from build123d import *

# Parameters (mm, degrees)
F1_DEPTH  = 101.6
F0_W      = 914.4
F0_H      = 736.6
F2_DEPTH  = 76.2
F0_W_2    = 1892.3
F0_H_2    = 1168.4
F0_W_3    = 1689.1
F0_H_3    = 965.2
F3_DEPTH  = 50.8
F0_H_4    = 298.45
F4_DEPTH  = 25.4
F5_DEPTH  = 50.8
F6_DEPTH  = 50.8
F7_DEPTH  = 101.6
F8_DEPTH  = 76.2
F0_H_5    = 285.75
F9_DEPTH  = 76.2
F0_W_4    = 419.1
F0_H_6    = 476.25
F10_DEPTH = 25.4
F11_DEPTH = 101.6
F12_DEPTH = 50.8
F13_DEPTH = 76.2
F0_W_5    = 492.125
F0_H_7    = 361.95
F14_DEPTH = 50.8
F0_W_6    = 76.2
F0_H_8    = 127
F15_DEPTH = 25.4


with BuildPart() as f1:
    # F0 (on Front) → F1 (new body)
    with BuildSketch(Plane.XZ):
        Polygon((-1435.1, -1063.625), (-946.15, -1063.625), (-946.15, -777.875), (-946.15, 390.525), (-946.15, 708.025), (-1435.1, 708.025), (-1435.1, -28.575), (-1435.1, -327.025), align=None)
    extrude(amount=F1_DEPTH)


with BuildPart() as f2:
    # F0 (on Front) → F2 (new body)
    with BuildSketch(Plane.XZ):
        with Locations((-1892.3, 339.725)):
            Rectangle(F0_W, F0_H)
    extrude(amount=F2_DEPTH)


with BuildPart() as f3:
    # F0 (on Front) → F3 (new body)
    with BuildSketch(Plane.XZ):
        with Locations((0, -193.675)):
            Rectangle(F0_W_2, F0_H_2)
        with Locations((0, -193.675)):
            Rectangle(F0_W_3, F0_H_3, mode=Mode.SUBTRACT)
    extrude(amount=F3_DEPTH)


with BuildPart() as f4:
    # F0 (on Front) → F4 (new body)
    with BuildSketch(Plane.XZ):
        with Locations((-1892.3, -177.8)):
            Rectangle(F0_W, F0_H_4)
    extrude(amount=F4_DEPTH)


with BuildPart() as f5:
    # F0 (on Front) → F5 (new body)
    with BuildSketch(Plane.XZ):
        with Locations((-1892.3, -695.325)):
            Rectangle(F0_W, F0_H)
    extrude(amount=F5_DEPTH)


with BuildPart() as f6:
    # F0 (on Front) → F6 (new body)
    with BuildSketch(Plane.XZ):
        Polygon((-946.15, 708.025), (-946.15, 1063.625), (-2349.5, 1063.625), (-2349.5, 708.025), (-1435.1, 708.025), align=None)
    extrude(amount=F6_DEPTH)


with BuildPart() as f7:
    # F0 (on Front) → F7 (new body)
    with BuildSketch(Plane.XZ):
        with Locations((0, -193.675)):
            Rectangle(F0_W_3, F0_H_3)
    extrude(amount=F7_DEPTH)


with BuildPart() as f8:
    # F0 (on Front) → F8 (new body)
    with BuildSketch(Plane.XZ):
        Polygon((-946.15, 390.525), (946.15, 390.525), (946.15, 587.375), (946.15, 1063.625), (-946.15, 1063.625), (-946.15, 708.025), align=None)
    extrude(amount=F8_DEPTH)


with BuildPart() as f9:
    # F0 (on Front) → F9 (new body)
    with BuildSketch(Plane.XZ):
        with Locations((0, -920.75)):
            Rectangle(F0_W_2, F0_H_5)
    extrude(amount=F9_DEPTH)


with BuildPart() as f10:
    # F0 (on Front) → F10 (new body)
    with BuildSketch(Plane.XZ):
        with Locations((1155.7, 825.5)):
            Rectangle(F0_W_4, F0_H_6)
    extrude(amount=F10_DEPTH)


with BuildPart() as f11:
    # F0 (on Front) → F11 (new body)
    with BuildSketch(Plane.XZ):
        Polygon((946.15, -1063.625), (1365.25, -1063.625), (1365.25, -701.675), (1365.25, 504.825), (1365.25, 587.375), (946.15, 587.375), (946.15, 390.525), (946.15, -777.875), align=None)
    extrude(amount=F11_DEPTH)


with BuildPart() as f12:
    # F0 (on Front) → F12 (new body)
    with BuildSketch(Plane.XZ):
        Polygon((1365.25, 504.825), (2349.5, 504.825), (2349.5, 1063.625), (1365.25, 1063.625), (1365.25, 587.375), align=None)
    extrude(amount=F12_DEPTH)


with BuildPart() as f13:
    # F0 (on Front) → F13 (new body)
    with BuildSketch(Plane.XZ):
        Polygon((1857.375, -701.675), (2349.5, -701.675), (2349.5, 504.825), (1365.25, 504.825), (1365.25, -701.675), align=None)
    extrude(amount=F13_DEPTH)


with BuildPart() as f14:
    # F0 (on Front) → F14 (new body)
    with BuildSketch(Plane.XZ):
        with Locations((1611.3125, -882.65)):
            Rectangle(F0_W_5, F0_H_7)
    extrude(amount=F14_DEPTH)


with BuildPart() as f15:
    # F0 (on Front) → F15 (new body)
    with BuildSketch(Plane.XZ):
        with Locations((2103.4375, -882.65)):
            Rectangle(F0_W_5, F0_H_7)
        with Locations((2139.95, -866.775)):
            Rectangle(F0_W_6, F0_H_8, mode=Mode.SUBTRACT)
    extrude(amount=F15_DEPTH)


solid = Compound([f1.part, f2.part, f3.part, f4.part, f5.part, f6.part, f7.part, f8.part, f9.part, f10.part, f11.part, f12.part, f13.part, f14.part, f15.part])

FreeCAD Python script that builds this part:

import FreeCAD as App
import Part
import Sketcher
from FreeCAD import Vector
Q = App.Units.Quantity


def add_polygon(sketch, points):
    """Adds a closed chain of lines whose ends are joined by coincident constraints."""
    first, n = sketch.GeometryCount, len(points)
    for a, b in zip(points, points[1:] + points[:1]):
        sketch.addGeometry(Part.LineSegment(App.Vector(*a, 0), App.Vector(*b, 0)), False)
    for i in range(n):
        sketch.addConstraint(Sketcher.Constraint("Coincident", first + i, 2, first + (i + 1) % n, 1))

doc = App.newDocument("Part")
params = doc.addObject("Spreadsheet::Sheet", "Params")
for row, (alias, value) in enumerate([
    ("sketch1_width", "19.25 in"),
    ("sketch1_height", "69.75 in"),
    ("pad1_length", "4 in"),
    ("sketch2_width", "36 in"),
    ("sketch2_height", "29 in"),
    ("pad2_length", "3 in"),
    ("sketch3_height", "46 in"),
    ("sketch3_height2", "38 in"),
    ("sketch3_width", "74.5 in"),
    ("sketch3_width2", "66.5 in"),
    ("pad3_length", "2 in"),
    ("sketch4_width", "36 in"),
    ("sketch4_height", "11.75 in"),
    ("pad4_length", "1 in"),
    ("sketch5_width", "36 in"),
    ("sketch5_height", "29 in"),
    ("pad5_length", "2 in"),
    ("sketch6_height", "14 in"),
    ("sketch6_width", "55.25 in"),
    ("pad6_length", "2 in"),
    ("sketch7_height", "38 in"),
    ("sketch7_width", "66.5 in"),
    ("pad7_length", "4 in"),
    ("sketch8_width", "74.5 in"),
    ("sketch8_height", "26.5 in"),
    ("pad8_length", "3 in"),
    ("sketch9_width", "74.5 in"),
    ("sketch9_height", "11.25 in"),
    ("pad9_length", "3 in"),
    ("sketch10_width", "16.5 in"),
    ("sketch10_height", "18.75 in"),
    ("pad10_length", "1 in"),
    ("sketch11_height", "65 in"),
    ("sketch11_width", "16.5 in"),
    ("pad11_length", "4 in"),
    ("sketch12_height", "22 in"),
    ("sketch12_width", "38.75 in"),
    ("pad12_length", "2 in"),
    ("sketch13_height", "47.5 in"),
    ("sketch13_width", "38.75 in"),
    ("pad13_length", "3 in"),
    ("sketch14_height", "14.25 in"),
    ("sketch14_width", "19.375 in"),
    ("pad14_length", "2 in"),
    ("sketch15_width", "3 in"),
    ("sketch15_height", "5 in"),
    ("sketch15_height2", "14.25 in"),
    ("sketch15_width2", "19.375 in"),
    ("pad15_length", "1 in"),
], start=1):
    params.set(f"A{row}", alias)
    params.set(f"B{row}", "=" + value)
    params.setAlias(f"B{row}", alias)

body = doc.addObject("PartDesign::Body", "Body")

# Sketch on XZ plane
sketch1 = body.newObject("Sketcher::SketchObject", "Sketch")
sketch1.AttachmentSupport = (doc.getObject("XZ_Plane"), [""])
sketch1.MapMode = "FlatFace"
add_polygon(sketch1, [(-1435, -1064), (-946, -1064), (-946, 708), (-1435, 708)])  # lines 0-3
sketch1.addConstraint([
    Sketcher.Constraint("Horizontal", 0),
    Sketcher.Constraint("Vertical", 1),
    Sketcher.Constraint("Horizontal", 2),
    Sketcher.Constraint("Vertical", 3),
    Sketcher.Constraint("DistanceX", 0, 1, 0, 2, Q("19.25 in")),
    Sketcher.Constraint("DistanceY", 1, 1, 1, 2, Q("69.75 in")),
    Sketcher.Constraint("DistanceX", 2, 2, -1, 1, Q("56.5 in")),
    Sketcher.Constraint("DistanceY", 0, 2, -1, 1, Q("41.875 in")),
])
sketch1.setExpression("Constraints[8]", "Params.sketch1_width")
sketch1.setExpression("Constraints[9]", "Params.sketch1_height")
pad1 = body.newObject("PartDesign::Pad", "Pad")
pad1.Profile = sketch1
pad1.setExpression("Length", "Params.pad1_length")
body2 = doc.addObject("PartDesign::Body", "Body001")

# Sketch on XZ plane
sketch2 = body2.newObject("Sketcher::SketchObject", "Sketch001")
sketch2.AttachmentSupport = (doc.getObject("XZ_Plane001"), [""])
sketch2.MapMode = "FlatFace"
add_polygon(sketch2, [(-2350, 708), (-2350, -29), (-1435, -29), (-1435, 708)])  # lines 0-3
sketch2.addConstraint([
    Sketcher.Constraint("Vertical", 0),
    Sketcher.Constraint("Horizontal", 1),
    Sketcher.Constraint("Vertical", 2),
    Sketcher.Constraint("Horizontal", 3),
    Sketcher.Constraint("DistanceX", 1, 1, 1, 2, Q("36 in")),
    Sketcher.Constraint("DistanceY", 0, 2, 0, 1, Q("29 in")),
    Sketcher.Constraint("DistanceX", 0, 2, -1, 1, Q("92.5 in")),
    Sketcher.Constraint("DistanceY", 0, 2, -1, 1, Q("1.125 in")),
])
sketch2.setExpression("Constraints[8]", "Params.sketch2_width")
sketch2.setExpression("Constraints[9]", "Params.sketch2_height")
pad2 = body2.newObject("PartDesign::Pad", "Pad001")
pad2.Profile = sketch2
pad2.setExpression("Length", "Params.pad2_length")
body3 = doc.addObject("PartDesign::Body", "Body002")

# Sketch on XZ plane
sketch3 = body3.newObject("Sketcher::SketchObject", "Sketch002")
sketch3.AttachmentSupport = (doc.getObject("XZ_Plane002"), [""])
sketch3.MapMode = "FlatFace"
add_polygon(sketch3, [(-946, 391), (-946, -778), (946, -778), (946, 391)])  # lines 0-3
add_polygon(sketch3, [(845, -676), (-845, -676), (-845, 289), (845, 289)])  # lines 4-7
sketch3.addConstraint([
    Sketcher.Constraint("Vertical", 0),
    Sketcher.Constraint("Horizontal", 1),
    Sketcher.Constraint("Vertical", 2),
    Sketcher.Constraint("Horizontal", 3),
    Sketcher.Constraint("Horizontal", 4),
    Sketcher.Constraint("Vertical", 5),
    Sketcher.Constraint("Horizontal", 6),
    Sketcher.Constraint("Vertical", 7),
    Sketcher.Constraint("DistanceY", 0, 2, 0, 1, Q("46 in")),
    Sketcher.Constraint("DistanceY", 5, 1, 5, 2, Q("38 in")),
    Sketcher.Constraint("DistanceX", 1, 1, 1, 2, Q("74.5 in")),
    Sketcher.Constraint("DistanceX", 4, 2, 4, 1, Q("66.5 in")),
    Sketcher.Constraint("DistanceX", 0, 2, 4, 2, Q("4 in")),
    Sketcher.Constraint("DistanceY", 0, 2, 4, 2, Q("4 in")),
    Sketcher.Constraint("DistanceX", 0, 2, -1, 1, Q("37.25 in")),
    Sketcher.Constraint("DistanceY", 0, 2, -1, 1, Q("30.625 in")),
])
sketch3.setExpression("Constraints[16]", "Params.sketch3_height")
sketch3.setExpression("Constraints[17]", "Params.sketch3_height2")
sketch3.setExpression("Constraints[18]", "Params.sketch3_width")
sketch3.setExpression("Constraints[19]", "Params.sketch3_width2")
pad3 = body3.newObject("PartDesign::Pad", "Pad002")
pad3.Profile = sketch3
pad3.setExpression("Length", "Params.pad3_length")
body4 = doc.addObject("PartDesign::Body", "Body003")

# Sketch on XZ plane
sketch4 = body4.newObject("Sketcher::SketchObject", "Sketch003")
sketch4.AttachmentSupport = (doc.getObject("XZ_Plane003"), [""])
sketch4.MapMode = "FlatFace"
add_polygon(sketch4, [(-2350, -29), (-2350, -327), (-1435, -327), (-1435, -29)])  # lines 0-3
sketch4.addConstraint([
    Sketcher.Constraint("Vertical", 0),
    Sketcher.Constraint("Horizontal", 1),
    Sketcher.Constraint("Vertical", 2),
    Sketcher.Constraint("Horizontal", 3),
    Sketcher.Constraint("DistanceX", 1, 1, 1, 2, Q("36 in")),
    Sketcher.Constraint("DistanceY", 0, 2, 0, 1, Q("11.75 in")),
    Sketcher.Constraint("DistanceX", 0, 2, -1, 1, Q("92.5 in")),
    Sketcher.Constraint("DistanceY", 0, 2, -1, 1, Q("12.875 in")),
])
sketch4.setExpression("Constraints[8]", "Params.sketch4_width")
sketch4.setExpression("Constraints[9]", "Params.sketch4_height")
pad4 = body4.newObject("PartDesign::Pad", "Pad003")
pad4.Profile = sketch4
pad4.setExpression("Length", "Params.pad4_length")
body5 = doc.addObject("PartDesign::Body", "Body004")

# Sketch on XZ plane
sketch5 = body5.newObject("Sketcher::SketchObject", "Sketch004")
sketch5.AttachmentSupport = (doc.getObject("XZ_Plane004"), [""])
sketch5.MapMode = "FlatFace"
add_polygon(sketch5, [(-2350, -327), (-2350, -1064), (-1435, -1064), (-1435, -327)])  # lines 0-3
sketch5.addConstraint([
    Sketcher.Constraint("Vertical", 0),
    Sketcher.Constraint("Horizontal", 1),
    Sketcher.Constraint("Vertical", 2),
    Sketcher.Constraint("Horizontal", 3),
    Sketcher.Constraint("DistanceX", 1, 1, 1, 2, Q("36 in")),
    Sketcher.Constraint("DistanceY", 0, 2, 0, 1, Q("29 in")),
    Sketcher.Constraint("DistanceX", 0, 2, -1, 1, Q("92.5 in")),
    Sketcher.Constraint("DistanceY", 0, 2, -1, 1, Q("41.875 in")),
])
sketch5.setExpression("Constraints[8]", "Params.sketch5_width")
sketch5.setExpression("Constraints[9]", "Params.sketch5_height")
pad5 = body5.newObject("PartDesign::Pad", "Pad004")
pad5.Profile = sketch5
pad5.setExpression("Length", "Params.pad5_length")
body6 = doc.addObject("PartDesign::Body", "Body005")

# Sketch on XZ plane
sketch6 = body6.newObject("Sketcher::SketchObject", "Sketch005")
sketch6.AttachmentSupport = (doc.getObject("XZ_Plane005"), [""])
sketch6.MapMode = "FlatFace"
add_polygon(sketch6, [(-946, 708), (-946, 1064), (-2350, 1064), (-2350, 708)])  # lines 0-3
sketch6.addConstraint([
    Sketcher.Constraint("Vertical", 0),
    Sketcher.Constraint("Horizontal", 1),
    Sketcher.Constraint("Vertical", 2),
    Sketcher.Constraint("Horizontal", 3),
    Sketcher.Constraint("DistanceY", 0, 1, 0, 2, Q("14 in")),
    Sketcher.Constraint("DistanceX", 1, 2, 1, 1, Q("55.25 in")),
    Sketcher.Constraint("DistanceX", 1, 2, -1, 1, Q("92.5 in")),
    Sketcher.Constraint("DistanceY", -1, 1, 0, 2, Q("41.875 in")),
])
sketch6.setExpression("Constraints[8]", "Params.sketch6_height")
sketch6.setExpression("Constraints[9]", "Params.sketch6_width")
pad6 = body6.newObject("PartDesign::Pad", "Pad005")
pad6.Profile = sketch6
pad6.setExpression("Length", "Params.pad6_length")
body7 = doc.addObject("PartDesign::Body", "Body006")

# Sketch on XZ plane
sketch7 = body7.newObject("Sketcher::SketchObject", "Sketch006")
sketch7.AttachmentSupport = (doc.getObject("XZ_Plane006"), [""])
sketch7.MapMode = "FlatFace"
add_polygon(sketch7, [(-845, 289), (-845, -676), (845, -676), (845, 289)])  # lines 0-3
sketch7.addConstraint([
    Sketcher.Constraint("Vertical", 0),
    Sketcher.Constraint("Horizontal", 1),
    Sketcher.Constraint("Vertical", 2),
    Sketcher.Constraint("Horizontal", 3),
    Sketcher.Constraint("DistanceY", 0, 2, 0, 1, Q("38 in")),
    Sketcher.Constraint("DistanceX", 1, 1, 1, 2, Q("66.5 in")),
    Sketcher.Constraint("DistanceX", 0, 2, -1, 1, Q("33.25 in")),
    Sketcher.Constraint("DistanceY", 0, 2, -1, 1, Q("26.625 in")),
])
sketch7.setExpression("Constraints[8]", "Params.sketch7_height")
sketch7.setExpression("Constraints[9]", "Params.sketch7_width")
pad7 = body7.newObject("PartDesign::Pad", "Pad006")
pad7.Profile = sketch7
pad7.setExpression("Length", "Params.pad7_length")
body8 = doc.addObject("PartDesign::Body", "Body007")

# Sketch on XZ plane
sketch8 = body8.newObject("Sketcher::SketchObject", "Sketch007")
sketch8.AttachmentSupport = (doc.getObject("XZ_Plane007"), [""])
sketch8.MapMode = "FlatFace"
add_polygon(sketch8, [(-946, 391), (946, 391), (946, 1064), (-946, 1064)])  # lines 0-3
sketch8.addConstraint([
    Sketcher.Constraint("Horizontal", 0),
    Sketcher.Constraint("Vertical", 1),
    Sketcher.Constraint("Horizontal", 2),
    Sketcher.Constraint("Vertical", 3),
    Sketcher.Constraint("DistanceX", 0, 1, 0, 2, Q("74.5 in")),
    Sketcher.Constraint("DistanceY", 1, 1, 1, 2, Q("26.5 in")),
    Sketcher.Constraint("DistanceX", -1, 1, 0, 2, Q("37.25 in")),
    Sketcher.Constraint("DistanceY", -1, 1, 0, 2, Q("15.375 in")),
])
sketch8.setExpression("Constraints[8]", "Params.sketch8_width")
sketch8.setExpression("Constraints[9]", "Params.sketch8_height")
pad8 = body8.newObject("PartDesign::Pad", "Pad007")
pad8.Profile = sketch8
pad8.setExpression("Length", "Params.pad8_length")
body9 = doc.addObject("PartDesign::Body", "Body008")

# Sketch on XZ plane
sketch9 = body9.newObject("Sketcher::SketchObject", "Sketch008")
sketch9.AttachmentSupport = (doc.getObject("XZ_Plane008"), [""])
sketch9.MapMode = "FlatFace"
add_polygon(sketch9, [(-946, -778), (-946, -1064), (946, -1064), (946, -778)])  # lines 0-3
sketch9.addConstraint([
    Sketcher.Constraint("Vertical", 0),
    Sketcher.Constraint("Horizontal", 1),
    Sketcher.Constraint("Vertical", 2),
    Sketcher.Constraint("Horizontal", 3),
    Sketcher.Constraint("DistanceX", 1, 1, 1, 2, Q("74.5 in")),
    Sketcher.Constraint("DistanceY", 0, 2, 0, 1, Q("11.25 in")),
    Sketcher.Constraint("DistanceX", 0, 2, -1, 1, Q("37.25 in")),
    Sketcher.Constraint("DistanceY", 0, 2, -1, 1, Q("41.875 in")),
])
sketch9.setExpression("Constraints[8]", "Params.sketch9_width")
sketch9.setExpression("Constraints[9]", "Params.sketch9_height")
pad9 = body9.newObject("PartDesign::Pad", "Pad008")
pad9.Profile = sketch9
pad9.setExpression("Length", "Params.pad9_length")
body10 = doc.addObject("PartDesign::Body", "Body009")

# Sketch on XZ plane
sketch10 = body10.newObject("Sketcher::SketchObject", "Sketch009")
sketch10.AttachmentSupport = (doc.getObject("XZ_Plane009"), [""])
sketch10.MapMode = "FlatFace"
add_polygon(sketch10, [(946, 1064), (946, 587), (1365, 587), (1365, 1064)])  # lines 0-3
sketch10.addConstraint([
    Sketcher.Constraint("Vertical", 0),
    Sketcher.Constraint("Horizontal", 1),
    Sketcher.Constraint("Vertical", 2),
    Sketcher.Constraint("Horizontal", 3),
    Sketcher.Constraint("DistanceX", 1, 1, 1, 2, Q("16.5 in")),
    Sketcher.Constraint("DistanceY", 0, 2, 0, 1, Q("18.75 in")),
    Sketcher.Constraint("DistanceX", -1, 1, 0, 2, Q("37.25 in")),
    Sketcher.Constraint("DistanceY", -1, 1, 0, 2, Q("23.125 in")),
])
sketch10.setExpression("Constraints[8]", "Params.sketch10_width")
sketch10.setExpression("Constraints[9]", "Params.sketch10_height")
pad10 = body10.newObject("PartDesign::Pad", "Pad009")
pad10.Profile = sketch10
pad10.setExpression("Length", "Params.pad10_length")
body11 = doc.addObject("PartDesign::Body", "Body010")

# Sketch on XZ plane
sketch11 = body11.newObject("Sketcher::SketchObject", "Sketch010")
sketch11.AttachmentSupport = (doc.getObject("XZ_Plane010"), [""])
sketch11.MapMode = "FlatFace"
add_polygon(sketch11, [(946, -1064), (1365, -1064), (1365, 587), (946, 587)])  # lines 0-3
sketch11.addConstraint([
    Sketcher.Constraint("Horizontal", 0),
    Sketcher.Constraint("Vertical", 1),
    Sketcher.Constraint("Horizontal", 2),
    Sketcher.Constraint("Vertical", 3),
    Sketcher.Constraint("DistanceY", 1, 1, 1, 2, Q("65 in")),
    Sketcher.Constraint("DistanceX", 0, 1, 0, 2, Q("16.5 in")),
    Sketcher.Constraint("DistanceX", -1, 1, 0, 2, Q("53.75 in")),
    Sketcher.Constraint("DistanceY", 0, 2, -1, 1, Q("41.875 in")),
])
sketch11.setExpression("Constraints[8]", "Params.sketch11_height")
sketch11.setExpression("Constraints[9]", "Params.sketch11_width")
pad11 = body11.newObject("PartDesign::Pad", "Pad010")
pad11.Profile = sketch11
pad11.setExpression("Length", "Params.pad11_length")
body12 = doc.addObject("PartDesign::Body", "Body011")

# Sketch on XZ plane
sketch12 = body12.newObject("Sketcher::SketchObject", "Sketch011")
sketch12.AttachmentSupport = (doc.getObject("XZ_Plane011"), [""])
sketch12.MapMode = "FlatFace"
add_polygon(sketch12, [(1365, 505), (2350, 505), (2350, 1064), (1365, 1064)])  # lines 0-3
sketch12.addConstraint([
    Sketcher.Constraint("Horizontal", 0),
    Sketcher.Constraint("Vertical", 1),
    Sketcher.Constraint("Horizontal", 2),
    Sketcher.Constraint("Vertical", 3),
    Sketcher.Constraint("DistanceY", 1, 1, 1, 2, Q("22 in")),
    Sketcher.Constraint("DistanceX", 0, 1, 0, 2, Q("38.75 in")),
    Sketcher.Constraint("DistanceX", -1, 1, 0, 2, Q("92.5 in")),
    Sketcher.Constraint("DistanceY", -1, 1, 0, 2, Q("19.875 in")),
])
sketch12.setExpression("Constraints[8]", "Params.sketch12_height")
sketch12.setExpression("Constraints[9]", "Params.sketch12_width")
pad12 = body12.newObject("PartDesign::Pad", "Pad011")
pad12.Profile = sketch12
pad12.setExpression("Length", "Params.pad12_length")
body13 = doc.addObject("PartDesign::Body", "Body012")

# Sketch on XZ plane
sketch13 = body13.newObject("Sketcher::SketchObject", "Sketch012")
sketch13.AttachmentSupport = (doc.getObject("XZ_Plane012"), [""])
sketch13.MapMode = "FlatFace"
add_polygon(sketch13, [(2350, -702), (2350, 505), (1365, 505), (1365, -702)])  # lines 0-3
sketch13.addConstraint([
    Sketcher.Constraint("Vertical", 0),
    Sketcher.Constraint("Horizontal", 1),
    Sketcher.Constraint("Vertical", 2),
    Sketcher.Constraint("Horizontal", 3),
    Sketcher.Constraint("DistanceY", 0, 1, 0, 2, Q("47.5 in")),
    Sketcher.Constraint("DistanceX", 1, 2, 1, 1, Q("38.75 in")),
    Sketcher.Constraint("DistanceX", -1, 1, 0, 2, Q("92.5 in")),
    Sketcher.Constraint("DistanceY", -1, 1, 0, 2, Q("19.875 in")),
])
sketch13.setExpression("Constraints[8]", "Params.sketch13_height")
sketch13.setExpression("Constraints[9]", "Params.sketch13_width")
pad13 = body13.newObject("PartDesign::Pad", "Pad012")
pad13.Profile = sketch13
pad13.setExpression("Length", "Params.pad13_length")
body14 = doc.addObject("PartDesign::Body", "Body013")

# Sketch on XZ plane
sketch14 = body14.newObject("Sketcher::SketchObject", "Sketch013")
sketch14.AttachmentSupport = (doc.getObject("XZ_Plane013"), [""])
sketch14.MapMode = "FlatFace"
add_polygon(sketch14, [(1365, -702), (1365, -1064), (1857, -1064), (1857, -702)])  # lines 0-3
sketch14.addConstraint([
    Sketcher.Constraint("Vertical", 0),
    Sketcher.Constraint("Horizontal", 1),
    Sketcher.Constraint("Vertical", 2),
    Sketcher.Constraint("Horizontal", 3),
    Sketcher.Constraint("DistanceY", 0, 2, 0, 1, Q("14.25 in")),
    Sketcher.Constraint("DistanceX", 1, 1, 1, 2, Q("19.375 in")),
    Sketcher.Constraint("DistanceX", -1, 1, 0, 2, Q("53.75 in")),
    Sketcher.Constraint("DistanceY", 0, 2, -1, 1, Q("41.875 in")),
])
sketch14.setExpression("Constraints[8]", "Params.sketch14_height")
sketch14.setExpression("Constraints[9]", "Params.sketch14_width")
pad14 = body14.newObject("PartDesign::Pad", "Pad013")
pad14.Profile = sketch14
pad14.setExpression("Length", "Params.pad14_length")
body15 = doc.addObject("PartDesign::Body", "Body014")

# Sketch on XZ plane
sketch15 = body15.newObject("Sketcher::SketchObject", "Sketch014")
sketch15.AttachmentSupport = (doc.getObject("XZ_Plane014"), [""])
sketch15.MapMode = "FlatFace"
add_polygon(sketch15, [(1857, -702), (1857, -1064), (2350, -1064), (2350, -702)])  # lines 0-3
add_polygon(sketch15, [(2178, -930), (2102, -930), (2102, -803), (2178, -803)])  # lines 4-7
sketch15.addConstraint([
    Sketcher.Constraint("Vertical", 0),
    Sketcher.Constraint("Horizontal", 1),
    Sketcher.Constraint("Vertical", 2),
    Sketcher.Constraint("Horizontal", 3),
    Sketcher.Constraint("Horizontal", 4),
    Sketcher.Constraint("Vertical", 5),
    Sketcher.Constraint("Horizontal", 6),
    Sketcher.Constraint("Vertical", 7),
    Sketcher.Constraint("DistanceX", 4, 2, 4, 1, Q("3 in")),
    Sketcher.Constraint("DistanceY", 5, 1, 5, 2, Q("5 in")),
    Sketcher.Constraint("DistanceY", 4, 2, 3, 2, Q("9 in")),
    Sketcher.Constraint("DistanceY", 0, 2, 0, 1, Q("14.25 in")),
    Sketcher.Constraint("DistanceX", -1, 1, 1, 2, Q("92.5 in")),
    Sketcher.Constraint("DistanceX", 1, 1, 1, 2, Q("19.375 in")),
    Sketcher.Constraint("DistanceX", -1, 1, 4, 2, Q("82.75 in")),
    Sketcher.Constraint("DistanceY", 0, 2, -1, 1, Q("41.875 in")),
])
sketch15.setExpression("Constraints[16]", "Params.sketch15_width")
sketch15.setExpression("Constraints[17]", "Params.sketch15_height")
sketch15.setExpression("Constraints[19]", "Params.sketch15_height2")
sketch15.setExpression("Constraints[21]", "Params.sketch15_width2")
pad15 = body15.newObject("PartDesign::Pad", "Pad014")
pad15.Profile = sketch15
pad15.setExpression("Length", "Params.pad15_length")

doc.recompute()
